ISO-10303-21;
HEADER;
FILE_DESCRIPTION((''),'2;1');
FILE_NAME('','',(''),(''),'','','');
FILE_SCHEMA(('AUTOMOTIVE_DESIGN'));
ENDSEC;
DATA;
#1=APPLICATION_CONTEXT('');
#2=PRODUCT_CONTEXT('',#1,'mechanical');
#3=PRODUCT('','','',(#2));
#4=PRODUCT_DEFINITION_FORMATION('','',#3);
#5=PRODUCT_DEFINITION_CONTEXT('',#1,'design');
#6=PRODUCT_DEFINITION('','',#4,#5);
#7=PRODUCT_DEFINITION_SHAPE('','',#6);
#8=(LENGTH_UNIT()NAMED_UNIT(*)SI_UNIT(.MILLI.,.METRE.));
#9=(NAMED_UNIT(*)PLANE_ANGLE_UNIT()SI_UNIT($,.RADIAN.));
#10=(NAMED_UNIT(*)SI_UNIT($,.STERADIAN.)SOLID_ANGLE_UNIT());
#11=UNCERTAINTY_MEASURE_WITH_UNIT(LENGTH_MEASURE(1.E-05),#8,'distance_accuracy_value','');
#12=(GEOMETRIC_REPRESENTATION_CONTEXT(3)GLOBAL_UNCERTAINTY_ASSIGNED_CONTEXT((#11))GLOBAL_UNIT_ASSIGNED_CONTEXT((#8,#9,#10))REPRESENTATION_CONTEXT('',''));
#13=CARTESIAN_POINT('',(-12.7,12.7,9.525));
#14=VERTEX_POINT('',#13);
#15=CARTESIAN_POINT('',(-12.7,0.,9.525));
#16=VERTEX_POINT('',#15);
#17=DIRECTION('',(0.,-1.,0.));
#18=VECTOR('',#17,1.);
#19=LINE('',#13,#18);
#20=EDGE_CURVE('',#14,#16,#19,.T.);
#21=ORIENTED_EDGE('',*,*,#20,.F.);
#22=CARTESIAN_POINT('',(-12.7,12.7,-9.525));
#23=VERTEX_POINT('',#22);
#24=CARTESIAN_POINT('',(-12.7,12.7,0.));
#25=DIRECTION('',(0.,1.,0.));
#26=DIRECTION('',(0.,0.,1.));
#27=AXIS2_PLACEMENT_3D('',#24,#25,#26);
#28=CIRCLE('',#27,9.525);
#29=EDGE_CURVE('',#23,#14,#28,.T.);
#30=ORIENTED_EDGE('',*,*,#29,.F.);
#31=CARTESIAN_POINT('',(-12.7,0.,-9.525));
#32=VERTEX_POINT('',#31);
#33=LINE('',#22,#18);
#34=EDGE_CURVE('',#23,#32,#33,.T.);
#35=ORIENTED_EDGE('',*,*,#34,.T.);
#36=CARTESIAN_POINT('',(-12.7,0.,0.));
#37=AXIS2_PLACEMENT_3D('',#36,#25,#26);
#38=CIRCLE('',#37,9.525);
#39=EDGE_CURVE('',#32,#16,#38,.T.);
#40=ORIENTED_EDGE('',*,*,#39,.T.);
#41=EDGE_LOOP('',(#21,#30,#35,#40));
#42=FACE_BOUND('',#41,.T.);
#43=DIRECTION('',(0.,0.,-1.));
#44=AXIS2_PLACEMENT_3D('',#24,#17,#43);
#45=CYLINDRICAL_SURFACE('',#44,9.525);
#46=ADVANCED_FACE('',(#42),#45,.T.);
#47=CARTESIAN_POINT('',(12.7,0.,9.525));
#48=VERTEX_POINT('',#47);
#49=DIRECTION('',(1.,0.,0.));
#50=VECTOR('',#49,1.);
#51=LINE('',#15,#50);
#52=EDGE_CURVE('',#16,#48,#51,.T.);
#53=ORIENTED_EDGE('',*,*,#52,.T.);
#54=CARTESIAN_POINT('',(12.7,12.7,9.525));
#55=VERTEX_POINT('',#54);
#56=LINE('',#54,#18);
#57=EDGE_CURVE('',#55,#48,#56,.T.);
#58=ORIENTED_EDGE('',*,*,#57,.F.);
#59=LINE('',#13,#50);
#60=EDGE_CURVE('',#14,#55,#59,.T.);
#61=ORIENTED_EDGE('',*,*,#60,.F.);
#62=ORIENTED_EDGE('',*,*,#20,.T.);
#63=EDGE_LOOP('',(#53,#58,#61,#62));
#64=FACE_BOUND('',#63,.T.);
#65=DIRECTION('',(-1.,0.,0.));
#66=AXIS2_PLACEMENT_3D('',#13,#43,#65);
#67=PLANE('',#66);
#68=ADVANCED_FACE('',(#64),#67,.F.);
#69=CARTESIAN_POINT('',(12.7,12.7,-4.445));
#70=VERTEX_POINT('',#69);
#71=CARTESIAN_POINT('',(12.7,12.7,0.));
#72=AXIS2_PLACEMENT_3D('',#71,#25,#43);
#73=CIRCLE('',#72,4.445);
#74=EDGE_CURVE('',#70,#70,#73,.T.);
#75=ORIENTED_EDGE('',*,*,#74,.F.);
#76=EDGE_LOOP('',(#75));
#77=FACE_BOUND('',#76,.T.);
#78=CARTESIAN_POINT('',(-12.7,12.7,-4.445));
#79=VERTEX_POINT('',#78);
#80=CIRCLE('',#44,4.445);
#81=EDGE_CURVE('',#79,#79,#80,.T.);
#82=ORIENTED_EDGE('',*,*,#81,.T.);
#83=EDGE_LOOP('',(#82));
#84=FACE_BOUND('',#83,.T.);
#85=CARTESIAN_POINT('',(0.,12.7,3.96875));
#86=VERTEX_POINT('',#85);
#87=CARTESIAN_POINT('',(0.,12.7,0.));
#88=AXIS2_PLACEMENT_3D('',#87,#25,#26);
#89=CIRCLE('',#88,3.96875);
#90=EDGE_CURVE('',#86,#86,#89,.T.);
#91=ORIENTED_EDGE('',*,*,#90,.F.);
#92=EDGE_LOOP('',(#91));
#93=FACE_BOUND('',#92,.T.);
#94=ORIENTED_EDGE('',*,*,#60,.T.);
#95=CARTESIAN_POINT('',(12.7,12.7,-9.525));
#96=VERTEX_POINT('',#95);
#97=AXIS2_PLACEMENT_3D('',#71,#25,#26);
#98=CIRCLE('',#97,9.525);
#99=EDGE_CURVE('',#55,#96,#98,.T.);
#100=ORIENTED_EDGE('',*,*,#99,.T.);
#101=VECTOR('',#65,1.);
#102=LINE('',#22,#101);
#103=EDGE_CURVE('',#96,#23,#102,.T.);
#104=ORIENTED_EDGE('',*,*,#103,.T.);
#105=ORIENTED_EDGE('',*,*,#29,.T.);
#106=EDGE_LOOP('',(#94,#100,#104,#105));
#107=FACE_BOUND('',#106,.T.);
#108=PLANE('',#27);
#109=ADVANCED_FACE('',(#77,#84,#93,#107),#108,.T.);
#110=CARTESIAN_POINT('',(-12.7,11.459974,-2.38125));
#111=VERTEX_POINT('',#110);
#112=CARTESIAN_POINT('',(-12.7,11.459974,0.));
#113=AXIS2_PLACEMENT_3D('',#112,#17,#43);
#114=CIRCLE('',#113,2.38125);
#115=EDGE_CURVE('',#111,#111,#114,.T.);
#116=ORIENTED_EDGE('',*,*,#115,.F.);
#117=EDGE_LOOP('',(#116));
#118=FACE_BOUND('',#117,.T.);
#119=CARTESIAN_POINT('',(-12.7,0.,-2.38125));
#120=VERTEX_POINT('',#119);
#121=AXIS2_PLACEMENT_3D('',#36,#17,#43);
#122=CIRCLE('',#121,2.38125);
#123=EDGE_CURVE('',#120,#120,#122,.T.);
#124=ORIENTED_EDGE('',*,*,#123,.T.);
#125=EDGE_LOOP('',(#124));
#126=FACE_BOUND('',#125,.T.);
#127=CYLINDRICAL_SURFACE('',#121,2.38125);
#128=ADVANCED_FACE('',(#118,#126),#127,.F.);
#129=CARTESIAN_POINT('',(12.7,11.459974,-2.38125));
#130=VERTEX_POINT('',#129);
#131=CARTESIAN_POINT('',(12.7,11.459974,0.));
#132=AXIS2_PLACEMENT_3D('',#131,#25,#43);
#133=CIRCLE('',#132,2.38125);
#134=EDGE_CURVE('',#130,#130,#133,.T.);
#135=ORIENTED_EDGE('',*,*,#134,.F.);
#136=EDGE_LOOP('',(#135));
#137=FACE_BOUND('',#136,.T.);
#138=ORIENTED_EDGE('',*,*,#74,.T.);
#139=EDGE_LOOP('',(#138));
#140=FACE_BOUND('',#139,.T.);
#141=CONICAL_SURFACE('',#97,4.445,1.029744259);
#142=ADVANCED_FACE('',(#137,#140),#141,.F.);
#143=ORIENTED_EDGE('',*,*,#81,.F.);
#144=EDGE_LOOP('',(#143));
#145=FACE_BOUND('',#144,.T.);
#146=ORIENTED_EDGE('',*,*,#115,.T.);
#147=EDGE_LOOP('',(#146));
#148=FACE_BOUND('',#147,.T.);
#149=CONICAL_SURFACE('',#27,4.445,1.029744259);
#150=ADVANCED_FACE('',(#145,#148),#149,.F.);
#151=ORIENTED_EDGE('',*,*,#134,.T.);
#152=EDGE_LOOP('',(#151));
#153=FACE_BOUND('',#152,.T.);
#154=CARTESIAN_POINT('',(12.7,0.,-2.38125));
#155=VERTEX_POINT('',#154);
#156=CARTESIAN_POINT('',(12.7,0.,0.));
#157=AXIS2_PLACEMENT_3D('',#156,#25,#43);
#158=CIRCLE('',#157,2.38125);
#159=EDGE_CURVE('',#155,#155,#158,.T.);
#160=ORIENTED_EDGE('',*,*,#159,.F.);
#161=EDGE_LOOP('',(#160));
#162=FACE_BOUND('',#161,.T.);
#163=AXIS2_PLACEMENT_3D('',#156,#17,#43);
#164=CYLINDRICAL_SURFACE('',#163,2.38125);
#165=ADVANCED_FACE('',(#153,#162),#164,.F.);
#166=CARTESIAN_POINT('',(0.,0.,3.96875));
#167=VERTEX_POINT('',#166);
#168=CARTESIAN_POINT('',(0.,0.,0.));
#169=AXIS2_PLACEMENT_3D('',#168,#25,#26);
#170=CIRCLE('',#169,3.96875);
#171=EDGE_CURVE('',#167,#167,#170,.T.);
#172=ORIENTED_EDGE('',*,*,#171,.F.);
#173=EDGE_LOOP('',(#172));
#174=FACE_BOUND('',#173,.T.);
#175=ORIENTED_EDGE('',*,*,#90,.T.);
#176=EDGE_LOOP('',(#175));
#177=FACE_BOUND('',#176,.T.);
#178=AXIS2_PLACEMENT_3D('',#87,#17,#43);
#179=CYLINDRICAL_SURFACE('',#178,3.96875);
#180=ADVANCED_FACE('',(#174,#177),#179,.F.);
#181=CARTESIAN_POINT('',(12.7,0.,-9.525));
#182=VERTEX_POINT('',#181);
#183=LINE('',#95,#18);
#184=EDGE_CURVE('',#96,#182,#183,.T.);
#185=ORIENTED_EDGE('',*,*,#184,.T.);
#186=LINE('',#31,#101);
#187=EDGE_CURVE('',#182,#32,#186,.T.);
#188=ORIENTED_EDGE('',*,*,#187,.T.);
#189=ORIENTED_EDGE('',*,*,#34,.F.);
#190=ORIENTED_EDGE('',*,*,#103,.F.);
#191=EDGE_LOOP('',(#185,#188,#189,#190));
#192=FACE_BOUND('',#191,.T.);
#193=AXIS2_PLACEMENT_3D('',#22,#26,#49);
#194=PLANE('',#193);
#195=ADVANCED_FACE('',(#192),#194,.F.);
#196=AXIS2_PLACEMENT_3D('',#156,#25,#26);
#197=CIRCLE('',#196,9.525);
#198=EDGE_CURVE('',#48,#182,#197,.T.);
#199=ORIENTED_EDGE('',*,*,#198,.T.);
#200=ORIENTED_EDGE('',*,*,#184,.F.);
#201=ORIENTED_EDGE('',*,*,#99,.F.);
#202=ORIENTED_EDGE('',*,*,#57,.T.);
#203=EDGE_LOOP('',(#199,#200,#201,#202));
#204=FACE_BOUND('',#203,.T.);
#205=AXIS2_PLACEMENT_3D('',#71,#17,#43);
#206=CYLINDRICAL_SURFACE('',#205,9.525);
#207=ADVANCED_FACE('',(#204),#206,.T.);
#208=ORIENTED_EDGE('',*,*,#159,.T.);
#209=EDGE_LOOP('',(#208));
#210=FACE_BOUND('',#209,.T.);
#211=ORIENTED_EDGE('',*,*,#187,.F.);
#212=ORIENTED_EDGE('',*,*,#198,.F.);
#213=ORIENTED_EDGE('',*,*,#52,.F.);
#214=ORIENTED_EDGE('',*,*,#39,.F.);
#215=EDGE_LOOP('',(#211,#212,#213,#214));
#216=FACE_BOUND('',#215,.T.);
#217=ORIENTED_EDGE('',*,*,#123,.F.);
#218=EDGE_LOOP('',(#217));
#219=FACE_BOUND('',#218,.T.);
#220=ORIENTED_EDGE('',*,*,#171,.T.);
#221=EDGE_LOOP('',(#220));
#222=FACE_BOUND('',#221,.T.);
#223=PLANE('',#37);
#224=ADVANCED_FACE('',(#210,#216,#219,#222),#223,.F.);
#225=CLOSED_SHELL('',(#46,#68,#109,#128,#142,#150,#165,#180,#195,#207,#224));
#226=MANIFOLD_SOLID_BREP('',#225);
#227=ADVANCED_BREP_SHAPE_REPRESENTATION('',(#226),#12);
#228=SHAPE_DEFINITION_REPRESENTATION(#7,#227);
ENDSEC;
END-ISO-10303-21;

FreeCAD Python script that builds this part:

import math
import FreeCAD as App
import Part
import Sketcher

V = App.Vector
Q = App.Units.Quantity

doc = App.newDocument("Part")
body = doc.addObject("PartDesign::Body", "Body")

# Sketch on XZ plane
sketch1 = body.newObject("Sketcher::SketchObject", "Sketch")
sketch1.AttachmentSupport = (doc.getObject("XZ_Plane"), [""])
sketch1.MapMode = "FlatFace"
sketch1.addGeometry([
    Part.LineSegment(V(12.7, -9.5, 0), V(-12.7, -9.5, 0)),  # 0
    Part.ArcOfCircle(Part.Circle(V(-12.7, 0, 0), V(0, 0, 1), 9.5), math.radians(90), math.radians(270)),  # 1
    Part.LineSegment(V(-12.7, 9.5, 0), V(12.7, 9.5, 0)),  # 2
    Part.ArcOfCircle(Part.Circle(V(12.7, 0, 0), V(0, 0, 1), 9.5), math.radians(-90), math.radians(90)),  # 3
    Part.Circle(V(0, 0, 0), V(0, 0, 1), 4),  # 4
], False)
sketch1.addConstraint([
    Sketcher.Constraint("Tangent", 0, 2, 1, 2),
    Sketcher.Constraint("Tangent", 1, 1, 2, 1),
    Sketcher.Constraint("Tangent", 2, 2, 3, 2),
    Sketcher.Constraint("Tangent", 3, 1, 0, 1),
    Sketcher.Constraint("Horizontal", 0),
    Sketcher.Constraint("Horizontal", 2),
    Sketcher.Constraint("Coincident", 4, 3, -1, 1),
    Sketcher.Constraint("Symmetric", 1, 3, 3, 3, -1, 1),
    Sketcher.Constraint("DistanceX", 0, 2, 0, 1, Q("1 in")),
    Sketcher.Constraint("Diameter", 4, Q("0.3125 in")),
    Sketcher.Constraint("Radius", 1, Q("0.375 in")),
])
pad1 = body.newObject("PartDesign::Pad", "Pad")
pad1.Profile = sketch1
pad1.Length = Q("0.5 in")
pad1.Reversed = True

# Sketch on XY plane
sketch2 = body.newObject("Sketcher::SketchObject", "Sketch001")
sketch2.AttachmentSupport = (doc.getObject("XY_Plane"), [""])
sketch2.MapMode = "FlatFace"
sketch2.addGeometry([
    Part.LineSegment(V(-12.7, 12.7, 0), V(-17.1, 12.7, 0)),  # 0
    Part.LineSegment(V(-17.1, 12.7, 0), V(-15.1, 11.5, 0)),  # 1
    Part.LineSegment(V(-15.1, 11.5, 0), V(-15.1, 0, 0)),  # 2
    Part.LineSegment(V(-15.1, 0, 0), V(-12.7, 0, 0)),  # 3
    Part.LineSegment(V(-12.7, 0, 0), V(-12.7, 12.7, 0)),  # 4
], False)
sketch2.addGeometry(Part.LineSegment(V(-12.7, 0, 0), V(-12.7, 12.7, 0)), True)  # axis
sketch2.addConstraint([
    Sketcher.Constraint("Coincident", 0, 2, 1, 1),
    Sketcher.Constraint("Coincident", 1, 2, 2, 1),
    Sketcher.Constraint("Coincident", 2, 2, 3, 1),
    Sketcher.Constraint("Coincident", 3, 2, 4, 1),
    Sketcher.Constraint("Coincident", 4, 2, 0, 1),
    Sketcher.Constraint("Horizontal", 0),
    Sketcher.Constraint("Vertical", 2),
    Sketcher.Constraint("Horizontal", 3),
    Sketcher.Constraint("Vertical", 4),
    Sketcher.Constraint("Vertical", 5),
    Sketcher.Constraint("Coincident", 5, 1, 3, 2),
    Sketcher.Constraint("PointOnObject", 2, 2, -1),
    Sketcher.Constraint("Horizontal", 0, 2, 5, 2),
    Sketcher.Constraint("DistanceY", 4, 1, 4, 2, Q("0.5 in")),
    Sketcher.Constraint("Angle", 1, Q("-31 deg")),
    Sketcher.Constraint("DistanceX", 3, 2, -1, 1, Q("0.5 in")),
    Sketcher.Constraint("DistanceX", 0, 2, 0, 1, Q("0.175 in")),
    Sketcher.Constraint("DistanceX", 3, 1, 3, 2, Q("0.09375 in")),
])
groove = body.newObject("PartDesign::Groove", "Groove")
groove.Profile = sketch2
groove.ReferenceAxis = (sketch2, ["Axis0"])
groove.Angle = 360
doc.recompute()

mirrored = body.newObject("PartDesign::Mirrored", "Mirrored")
mirrored.Originals = [groove]
mirrored.MirrorPlane = (doc.getObject("YZ_Plane"), [""])
body.Tip = mirrored

doc.recompute()
